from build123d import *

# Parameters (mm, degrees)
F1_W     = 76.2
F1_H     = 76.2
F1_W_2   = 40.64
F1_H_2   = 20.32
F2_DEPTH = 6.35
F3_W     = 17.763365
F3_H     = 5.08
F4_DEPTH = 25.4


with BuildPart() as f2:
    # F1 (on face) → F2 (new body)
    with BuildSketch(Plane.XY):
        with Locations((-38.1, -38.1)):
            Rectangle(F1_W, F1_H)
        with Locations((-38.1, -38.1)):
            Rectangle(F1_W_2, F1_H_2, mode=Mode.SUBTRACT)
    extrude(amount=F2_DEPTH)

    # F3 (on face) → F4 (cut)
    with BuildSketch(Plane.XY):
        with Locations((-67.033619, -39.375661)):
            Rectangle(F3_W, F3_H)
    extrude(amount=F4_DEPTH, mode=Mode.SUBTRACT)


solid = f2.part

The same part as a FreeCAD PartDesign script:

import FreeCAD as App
import Part
import Sketcher

V = App.Vector
Q = App.Units.Quantity


def add_polygon(sketch, points):
    """Adds a closed chain of lines whose ends are joined by coincident constraints."""
    first, n = sketch.GeometryCount, len(points)
    for a, b in zip(points, points[1:] + points[:1]):
        sketch.addGeometry(Part.LineSegment(App.Vector(*a, 0), App.Vector(*b, 0)), False)
    for i in range(n):
        sketch.addConstraint(Sketcher.Constraint("Coincident", first + i, 2, first + (i + 1) % n, 1))

doc = App.newDocument("Part")
params = doc.addObject("Spreadsheet::Sheet", "Params")
for row, (alias, value) in enumerate([
    ("sketch1_width", "3 in"),
    ("sketch1_width2", "1.6 in"),
    ("sketch1_height", "0.8 in"),
    ("pad1_length", "0.25 in"),
    ("sketch2_height", "0.2 in"),
    ("pocket1_length", "1 in"),
], start=1):
    params.set(f"A{row}", alias)
    params.set(f"B{row}", "=" + value)
    params.setAlias(f"B{row}", alias)

body = doc.addObject("PartDesign::Body", "Body")

# Sketch on XY plane
sketch1 = doc.addObject("Sketcher::SketchObject", "Sketch")
body.addObject(sketch1)
sketch1.AttachmentSupport = (doc.XY_Plane, [""])
sketch1.MapMode = "FlatFace"
add_polygon(sketch1, [(-76.2, 0), (-76.2, -76.2), (0, -76.2), (0, 0)])  # lines 0-3
add_polygon(sketch1, [(-17.78, -48.26), (-58.42, -48.26), (-58.42, -27.94), (-17.78, -27.94)])  # lines 4-7
sketch1.addConstraint(Sketcher.Constraint("Vertical", 0))
sketch1.addConstraint(Sketcher.Constraint("Horizontal", 1))
sketch1.addConstraint(Sketcher.Constraint("Vertical", 2))
sketch1.addConstraint(Sketcher.Constraint("Horizontal", 3))
sketch1.addConstraint(Sketcher.Constraint("Horizontal", 4))
sketch1.addConstraint(Sketcher.Constraint("Vertical", 5))
sketch1.addConstraint(Sketcher.Constraint("Horizontal", 6))
sketch1.addConstraint(Sketcher.Constraint("Vertical", 7))
sketch1.addConstraint(Sketcher.Constraint("Coincident", 2, 2, -1, 1))
sketch1.addConstraint(Sketcher.Constraint("Equal", 3, 0))
sketch1.addConstraint(Sketcher.Constraint("DistanceX", 1, 1, 1, 2, Q("3 in")))
sketch1.addConstraint(Sketcher.Constraint("DistanceX", 4, 2, 4, 1, Q("1.6 in")))
sketch1.addConstraint(Sketcher.Constraint("DistanceY", 5, 1, 5, 2, Q("0.8 in")))
sketch1.addConstraint(Sketcher.Constraint("DistanceX", 4, 2, -1, 1, Q("2.3 in")))
sketch1.addConstraint(Sketcher.Constraint("DistanceY", 4, 2, -1, 1, Q("1.9 in")))
sketch1.setExpression("Constraints[18]", "Params.sketch1_width")
sketch1.setExpression("Constraints[19]", "Params.sketch1_width2")
sketch1.setExpression("Constraints[20]", "Params.sketch1_height")
pad1 = doc.addObject("PartDesign::Pad", "Pad")
body.addObject(pad1)
pad1.Profile = sketch1
pad1.setExpression("Length", "Params.pad1_length")

# Sketch on XY plane
sketch2 = doc.addObject("Sketcher::SketchObject", "Sketch001")
body.addObject(sketch2)
sketch2.AttachmentSupport = (doc.XY_Plane, [""])
sketch2.MapMode = "FlatFace"
add_polygon(sketch2, [(-75.915301, -36.835661), (-75.915301, -41.915661), (-58.151936, -41.915661), (-58.151936, -36.835661)])  # lines 0-3
sketch2.addConstraint(Sketcher.Constraint("Vertical", 0))
sketch2.addConstraint(Sketcher.Constraint("Horizontal", 1))
sketch2.addConstraint(Sketcher.Constraint("Vertical", 2))
sketch2.addConstraint(Sketcher.Constraint("Horizontal", 3))
sketch2.addConstraint(Sketcher.Constraint("DistanceY", 0, 2, 0, 1, Q("0.2 in")))
sketch2.addConstraint(Sketcher.Constraint("DistanceX", 0, 2, -1, 1, Q("75.915301 mm")))
sketch2.addConstraint(Sketcher.Constraint("DistanceX", 1, 1, 1, 2, Q("17.763365 mm")))
sketch2.addConstraint(Sketcher.Constraint("DistanceY", 0, 2, -1, 1, Q("41.915661 mm")))
sketch2.setExpression("Constraints[8]", "Params.sketch2_height")
pocket1 = doc.addObject("PartDesign::Pocket", "Pocket")
body.addObject(pocket1)
pocket1.Profile = sketch2
pocket1.setExpression("Length", "Params.pocket1_length")
pocket1.Reversed = True

doc.recompute()
